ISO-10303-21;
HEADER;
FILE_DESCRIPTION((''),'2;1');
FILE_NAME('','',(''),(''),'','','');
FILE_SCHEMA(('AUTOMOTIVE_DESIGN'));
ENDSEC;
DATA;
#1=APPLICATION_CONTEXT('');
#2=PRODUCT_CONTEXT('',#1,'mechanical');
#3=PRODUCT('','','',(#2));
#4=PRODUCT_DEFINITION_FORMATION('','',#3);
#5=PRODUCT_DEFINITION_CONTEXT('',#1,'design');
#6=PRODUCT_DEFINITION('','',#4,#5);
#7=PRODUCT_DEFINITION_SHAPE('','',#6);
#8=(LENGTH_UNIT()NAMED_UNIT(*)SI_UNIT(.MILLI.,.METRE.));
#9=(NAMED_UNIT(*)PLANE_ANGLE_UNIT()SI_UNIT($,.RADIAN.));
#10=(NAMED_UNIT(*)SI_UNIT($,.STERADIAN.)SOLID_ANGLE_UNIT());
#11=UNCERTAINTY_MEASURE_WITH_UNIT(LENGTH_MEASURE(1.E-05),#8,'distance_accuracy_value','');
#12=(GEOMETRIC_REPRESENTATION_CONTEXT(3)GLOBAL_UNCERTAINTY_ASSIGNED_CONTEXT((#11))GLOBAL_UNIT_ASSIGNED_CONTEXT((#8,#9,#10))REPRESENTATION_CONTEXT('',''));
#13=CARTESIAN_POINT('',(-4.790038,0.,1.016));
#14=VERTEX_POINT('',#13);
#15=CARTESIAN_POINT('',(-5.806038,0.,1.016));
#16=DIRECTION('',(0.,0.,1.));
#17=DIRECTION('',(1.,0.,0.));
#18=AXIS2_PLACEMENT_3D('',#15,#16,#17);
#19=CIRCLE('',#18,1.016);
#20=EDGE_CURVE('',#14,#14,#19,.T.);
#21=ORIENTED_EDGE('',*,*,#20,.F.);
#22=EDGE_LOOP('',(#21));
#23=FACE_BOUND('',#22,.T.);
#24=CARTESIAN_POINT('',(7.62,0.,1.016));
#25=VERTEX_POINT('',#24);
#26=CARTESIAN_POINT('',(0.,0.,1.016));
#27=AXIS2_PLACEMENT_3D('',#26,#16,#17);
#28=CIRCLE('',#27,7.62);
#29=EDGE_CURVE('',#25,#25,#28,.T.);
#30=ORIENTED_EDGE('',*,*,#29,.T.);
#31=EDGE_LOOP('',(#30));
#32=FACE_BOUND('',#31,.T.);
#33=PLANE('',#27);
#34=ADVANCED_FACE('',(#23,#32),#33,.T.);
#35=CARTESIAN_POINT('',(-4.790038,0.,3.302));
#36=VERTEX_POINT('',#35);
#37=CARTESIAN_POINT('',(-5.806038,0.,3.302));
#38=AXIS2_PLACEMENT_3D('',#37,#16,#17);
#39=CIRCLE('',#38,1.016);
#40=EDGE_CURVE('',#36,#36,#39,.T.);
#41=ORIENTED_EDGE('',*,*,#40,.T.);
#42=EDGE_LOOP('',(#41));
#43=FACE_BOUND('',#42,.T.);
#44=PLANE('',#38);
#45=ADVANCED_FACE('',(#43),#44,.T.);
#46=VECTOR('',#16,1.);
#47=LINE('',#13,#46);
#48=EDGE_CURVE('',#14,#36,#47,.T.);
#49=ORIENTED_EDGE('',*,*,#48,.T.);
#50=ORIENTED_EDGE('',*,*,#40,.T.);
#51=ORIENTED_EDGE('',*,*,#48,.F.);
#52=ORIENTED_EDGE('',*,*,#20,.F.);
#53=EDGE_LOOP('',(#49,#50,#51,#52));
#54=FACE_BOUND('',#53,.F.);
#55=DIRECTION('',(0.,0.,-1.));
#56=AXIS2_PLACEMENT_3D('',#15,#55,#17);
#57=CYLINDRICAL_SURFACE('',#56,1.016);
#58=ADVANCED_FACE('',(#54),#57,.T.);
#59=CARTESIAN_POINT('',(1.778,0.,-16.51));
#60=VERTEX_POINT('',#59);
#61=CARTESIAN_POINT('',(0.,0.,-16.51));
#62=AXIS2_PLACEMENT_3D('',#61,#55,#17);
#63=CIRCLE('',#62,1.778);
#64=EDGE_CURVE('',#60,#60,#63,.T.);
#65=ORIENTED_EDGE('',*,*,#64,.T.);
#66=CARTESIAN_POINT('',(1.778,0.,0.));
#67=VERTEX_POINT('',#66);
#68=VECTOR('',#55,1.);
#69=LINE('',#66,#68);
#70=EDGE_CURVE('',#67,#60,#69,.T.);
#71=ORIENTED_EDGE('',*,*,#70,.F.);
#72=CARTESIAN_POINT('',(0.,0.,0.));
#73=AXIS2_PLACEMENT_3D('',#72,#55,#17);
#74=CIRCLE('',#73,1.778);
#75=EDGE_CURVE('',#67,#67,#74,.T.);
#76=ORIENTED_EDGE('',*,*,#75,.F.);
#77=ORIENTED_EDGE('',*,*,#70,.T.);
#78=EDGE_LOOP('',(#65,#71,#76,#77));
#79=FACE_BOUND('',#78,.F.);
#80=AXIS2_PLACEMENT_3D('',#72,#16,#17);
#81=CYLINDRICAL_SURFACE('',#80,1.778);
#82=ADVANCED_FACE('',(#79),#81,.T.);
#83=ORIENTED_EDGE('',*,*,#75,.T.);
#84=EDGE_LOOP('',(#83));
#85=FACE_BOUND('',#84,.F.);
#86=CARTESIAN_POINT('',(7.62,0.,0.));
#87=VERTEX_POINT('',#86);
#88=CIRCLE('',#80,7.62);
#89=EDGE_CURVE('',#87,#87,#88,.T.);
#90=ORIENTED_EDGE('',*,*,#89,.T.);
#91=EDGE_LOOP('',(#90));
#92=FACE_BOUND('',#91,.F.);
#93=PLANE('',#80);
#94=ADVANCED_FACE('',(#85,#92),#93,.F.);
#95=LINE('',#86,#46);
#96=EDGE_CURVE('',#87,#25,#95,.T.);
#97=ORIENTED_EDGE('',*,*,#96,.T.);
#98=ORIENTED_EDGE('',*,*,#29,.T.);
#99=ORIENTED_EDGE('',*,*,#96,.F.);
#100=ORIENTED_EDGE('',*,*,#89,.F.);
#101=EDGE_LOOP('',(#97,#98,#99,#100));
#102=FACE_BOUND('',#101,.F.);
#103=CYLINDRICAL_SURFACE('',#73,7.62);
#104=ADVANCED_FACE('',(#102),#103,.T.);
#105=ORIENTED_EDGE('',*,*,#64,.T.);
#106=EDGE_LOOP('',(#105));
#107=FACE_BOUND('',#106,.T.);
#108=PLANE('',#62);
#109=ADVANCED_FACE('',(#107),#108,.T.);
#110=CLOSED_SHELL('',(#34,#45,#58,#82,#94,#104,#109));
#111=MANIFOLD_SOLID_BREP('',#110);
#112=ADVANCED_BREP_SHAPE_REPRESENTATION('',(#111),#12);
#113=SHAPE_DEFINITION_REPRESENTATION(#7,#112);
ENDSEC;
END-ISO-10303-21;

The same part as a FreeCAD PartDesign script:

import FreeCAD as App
import Part
import Sketcher

V = App.Vector
Q = App.Units.Quantity

doc = App.newDocument("Part")
body = doc.addObject("PartDesign::Body", "Body")

# Sketch on XY plane
sketch1 = body.newObject("Sketcher::SketchObject", "Sketch")
sketch1.AttachmentSupport = (doc.getObject("XY_Plane"), [""])
sketch1.MapMode = "FlatFace"
sketch1.addGeometry(Part.Circle(V(0, 0, 0), V(0, 0, 1), 7.62), False)
sketch1.addConstraint(Sketcher.Constraint("Coincident", 0, 3, -1, 1))
sketch1.addConstraint(Sketcher.Constraint("Diameter", 0, Q("0.6 in")))
pad1 = body.newObject("PartDesign::Pad", "Pad")
pad1.Profile = sketch1
pad1.Length = Q("0.04 in")

# Sketch on XY plane
sketch2 = body.newObject("Sketcher::SketchObject", "Sketch001")
sketch2.AttachmentSupport = (doc.getObject("XY_Plane"), [""])
sketch2.MapMode = "FlatFace"
sketch2.AttachmentOffset = App.Placement(V(0, 0, 0.04 * 25.4), App.Rotation())
sketch2.addGeometry(Part.Circle(V(-5.806038, 0, 0), V(0, 0, 1), 1.016), False)
sketch2.addConstraint(Sketcher.Constraint("PointOnObject", 0, 3, -1))
sketch2.addConstraint(Sketcher.Constraint("Diameter", 0, Q("0.08 in")))
sketch2.addConstraint(Sketcher.Constraint("DistanceX", 0, 3, -1, 1, 5.806038))
pad2 = body.newObject("PartDesign::Pad", "Pad001")
pad2.Profile = sketch2
pad2.Length = Q("0.09 in")

# Sketch on XY plane
sketch3 = body.newObject("Sketcher::SketchObject", "Sketch002")
sketch3.AttachmentSupport = (doc.getObject("XY_Plane"), [""])
sketch3.MapMode = "FlatFace"
sketch3.addGeometry(Part.Circle(V(0, 0, 0), V(0, 0, 1), 1.778), False)
sketch3.addConstraint(Sketcher.Constraint("Coincident", 0, 3, -1, 1))
sketch3.addConstraint(Sketcher.Constraint("Diameter", 0, Q("0.14 in")))
pad3 = body.newObject("PartDesign::Pad", "Pad002")
pad3.Profile = sketch3
pad3.Length = Q("0.65 in")
pad3.Reversed = True

doc.recompute()
